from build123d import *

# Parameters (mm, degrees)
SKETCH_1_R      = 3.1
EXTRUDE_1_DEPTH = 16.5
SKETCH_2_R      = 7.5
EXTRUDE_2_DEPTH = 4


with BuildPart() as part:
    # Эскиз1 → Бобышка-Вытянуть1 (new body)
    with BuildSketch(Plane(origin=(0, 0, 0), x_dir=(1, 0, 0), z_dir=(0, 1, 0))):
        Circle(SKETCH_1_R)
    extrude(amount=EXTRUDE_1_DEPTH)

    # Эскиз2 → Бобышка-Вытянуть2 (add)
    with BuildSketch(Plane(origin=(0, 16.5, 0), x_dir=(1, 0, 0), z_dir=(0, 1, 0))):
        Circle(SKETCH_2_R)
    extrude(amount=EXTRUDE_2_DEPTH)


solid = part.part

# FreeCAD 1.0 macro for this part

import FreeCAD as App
import Part
import Sketcher

V = App.Vector

doc = App.newDocument("Part")
body = doc.addObject("PartDesign::Body", "Body")

sketch1 = body.newObject("Sketcher::SketchObject", "Sketch")
sketch1.AttachmentSupport = (doc.getObject("XZ_Plane"), [""])
sketch1.MapMode = "FlatFace"
sketch1.addGeometry(Part.Circle(V(0, 0, 0), V(0, 0, 1), 3.1), False)
sketch1.addConstraint([
    Sketcher.Constraint("Coincident", 0, 3, -1, 1),
    Sketcher.Constraint("Diameter", 0, 6.2),
])
pad1 = body.newObject("PartDesign::Pad", "Pad")
pad1.Profile = sketch1
pad1.Length = 16.5
pad1.Reversed = True

sketch2 = body.newObject("Sketcher::SketchObject", "Sketch001")
sketch2.AttachmentSupport = (doc.getObject("XZ_Plane"), [""])
sketch2.MapMode = "FlatFace"
sketch2.AttachmentOffset = App.Placement(V(0, 0, -16.5), App.Rotation())
sketch2.addGeometry(Part.Circle(V(0, 0, 0), V(0, 0, 1), 7.5), False)
sketch2.addConstraint([
    Sketcher.Constraint("Coincident", 0, 3, -1, 1),
    Sketcher.Constraint("Diameter", 0, 15.0),
])
pad2 = body.newObject("PartDesign::Pad", "Pad001")
pad2.Profile = sketch2
pad2.Length = 4
pad2.Reversed = True

doc.recompute()
